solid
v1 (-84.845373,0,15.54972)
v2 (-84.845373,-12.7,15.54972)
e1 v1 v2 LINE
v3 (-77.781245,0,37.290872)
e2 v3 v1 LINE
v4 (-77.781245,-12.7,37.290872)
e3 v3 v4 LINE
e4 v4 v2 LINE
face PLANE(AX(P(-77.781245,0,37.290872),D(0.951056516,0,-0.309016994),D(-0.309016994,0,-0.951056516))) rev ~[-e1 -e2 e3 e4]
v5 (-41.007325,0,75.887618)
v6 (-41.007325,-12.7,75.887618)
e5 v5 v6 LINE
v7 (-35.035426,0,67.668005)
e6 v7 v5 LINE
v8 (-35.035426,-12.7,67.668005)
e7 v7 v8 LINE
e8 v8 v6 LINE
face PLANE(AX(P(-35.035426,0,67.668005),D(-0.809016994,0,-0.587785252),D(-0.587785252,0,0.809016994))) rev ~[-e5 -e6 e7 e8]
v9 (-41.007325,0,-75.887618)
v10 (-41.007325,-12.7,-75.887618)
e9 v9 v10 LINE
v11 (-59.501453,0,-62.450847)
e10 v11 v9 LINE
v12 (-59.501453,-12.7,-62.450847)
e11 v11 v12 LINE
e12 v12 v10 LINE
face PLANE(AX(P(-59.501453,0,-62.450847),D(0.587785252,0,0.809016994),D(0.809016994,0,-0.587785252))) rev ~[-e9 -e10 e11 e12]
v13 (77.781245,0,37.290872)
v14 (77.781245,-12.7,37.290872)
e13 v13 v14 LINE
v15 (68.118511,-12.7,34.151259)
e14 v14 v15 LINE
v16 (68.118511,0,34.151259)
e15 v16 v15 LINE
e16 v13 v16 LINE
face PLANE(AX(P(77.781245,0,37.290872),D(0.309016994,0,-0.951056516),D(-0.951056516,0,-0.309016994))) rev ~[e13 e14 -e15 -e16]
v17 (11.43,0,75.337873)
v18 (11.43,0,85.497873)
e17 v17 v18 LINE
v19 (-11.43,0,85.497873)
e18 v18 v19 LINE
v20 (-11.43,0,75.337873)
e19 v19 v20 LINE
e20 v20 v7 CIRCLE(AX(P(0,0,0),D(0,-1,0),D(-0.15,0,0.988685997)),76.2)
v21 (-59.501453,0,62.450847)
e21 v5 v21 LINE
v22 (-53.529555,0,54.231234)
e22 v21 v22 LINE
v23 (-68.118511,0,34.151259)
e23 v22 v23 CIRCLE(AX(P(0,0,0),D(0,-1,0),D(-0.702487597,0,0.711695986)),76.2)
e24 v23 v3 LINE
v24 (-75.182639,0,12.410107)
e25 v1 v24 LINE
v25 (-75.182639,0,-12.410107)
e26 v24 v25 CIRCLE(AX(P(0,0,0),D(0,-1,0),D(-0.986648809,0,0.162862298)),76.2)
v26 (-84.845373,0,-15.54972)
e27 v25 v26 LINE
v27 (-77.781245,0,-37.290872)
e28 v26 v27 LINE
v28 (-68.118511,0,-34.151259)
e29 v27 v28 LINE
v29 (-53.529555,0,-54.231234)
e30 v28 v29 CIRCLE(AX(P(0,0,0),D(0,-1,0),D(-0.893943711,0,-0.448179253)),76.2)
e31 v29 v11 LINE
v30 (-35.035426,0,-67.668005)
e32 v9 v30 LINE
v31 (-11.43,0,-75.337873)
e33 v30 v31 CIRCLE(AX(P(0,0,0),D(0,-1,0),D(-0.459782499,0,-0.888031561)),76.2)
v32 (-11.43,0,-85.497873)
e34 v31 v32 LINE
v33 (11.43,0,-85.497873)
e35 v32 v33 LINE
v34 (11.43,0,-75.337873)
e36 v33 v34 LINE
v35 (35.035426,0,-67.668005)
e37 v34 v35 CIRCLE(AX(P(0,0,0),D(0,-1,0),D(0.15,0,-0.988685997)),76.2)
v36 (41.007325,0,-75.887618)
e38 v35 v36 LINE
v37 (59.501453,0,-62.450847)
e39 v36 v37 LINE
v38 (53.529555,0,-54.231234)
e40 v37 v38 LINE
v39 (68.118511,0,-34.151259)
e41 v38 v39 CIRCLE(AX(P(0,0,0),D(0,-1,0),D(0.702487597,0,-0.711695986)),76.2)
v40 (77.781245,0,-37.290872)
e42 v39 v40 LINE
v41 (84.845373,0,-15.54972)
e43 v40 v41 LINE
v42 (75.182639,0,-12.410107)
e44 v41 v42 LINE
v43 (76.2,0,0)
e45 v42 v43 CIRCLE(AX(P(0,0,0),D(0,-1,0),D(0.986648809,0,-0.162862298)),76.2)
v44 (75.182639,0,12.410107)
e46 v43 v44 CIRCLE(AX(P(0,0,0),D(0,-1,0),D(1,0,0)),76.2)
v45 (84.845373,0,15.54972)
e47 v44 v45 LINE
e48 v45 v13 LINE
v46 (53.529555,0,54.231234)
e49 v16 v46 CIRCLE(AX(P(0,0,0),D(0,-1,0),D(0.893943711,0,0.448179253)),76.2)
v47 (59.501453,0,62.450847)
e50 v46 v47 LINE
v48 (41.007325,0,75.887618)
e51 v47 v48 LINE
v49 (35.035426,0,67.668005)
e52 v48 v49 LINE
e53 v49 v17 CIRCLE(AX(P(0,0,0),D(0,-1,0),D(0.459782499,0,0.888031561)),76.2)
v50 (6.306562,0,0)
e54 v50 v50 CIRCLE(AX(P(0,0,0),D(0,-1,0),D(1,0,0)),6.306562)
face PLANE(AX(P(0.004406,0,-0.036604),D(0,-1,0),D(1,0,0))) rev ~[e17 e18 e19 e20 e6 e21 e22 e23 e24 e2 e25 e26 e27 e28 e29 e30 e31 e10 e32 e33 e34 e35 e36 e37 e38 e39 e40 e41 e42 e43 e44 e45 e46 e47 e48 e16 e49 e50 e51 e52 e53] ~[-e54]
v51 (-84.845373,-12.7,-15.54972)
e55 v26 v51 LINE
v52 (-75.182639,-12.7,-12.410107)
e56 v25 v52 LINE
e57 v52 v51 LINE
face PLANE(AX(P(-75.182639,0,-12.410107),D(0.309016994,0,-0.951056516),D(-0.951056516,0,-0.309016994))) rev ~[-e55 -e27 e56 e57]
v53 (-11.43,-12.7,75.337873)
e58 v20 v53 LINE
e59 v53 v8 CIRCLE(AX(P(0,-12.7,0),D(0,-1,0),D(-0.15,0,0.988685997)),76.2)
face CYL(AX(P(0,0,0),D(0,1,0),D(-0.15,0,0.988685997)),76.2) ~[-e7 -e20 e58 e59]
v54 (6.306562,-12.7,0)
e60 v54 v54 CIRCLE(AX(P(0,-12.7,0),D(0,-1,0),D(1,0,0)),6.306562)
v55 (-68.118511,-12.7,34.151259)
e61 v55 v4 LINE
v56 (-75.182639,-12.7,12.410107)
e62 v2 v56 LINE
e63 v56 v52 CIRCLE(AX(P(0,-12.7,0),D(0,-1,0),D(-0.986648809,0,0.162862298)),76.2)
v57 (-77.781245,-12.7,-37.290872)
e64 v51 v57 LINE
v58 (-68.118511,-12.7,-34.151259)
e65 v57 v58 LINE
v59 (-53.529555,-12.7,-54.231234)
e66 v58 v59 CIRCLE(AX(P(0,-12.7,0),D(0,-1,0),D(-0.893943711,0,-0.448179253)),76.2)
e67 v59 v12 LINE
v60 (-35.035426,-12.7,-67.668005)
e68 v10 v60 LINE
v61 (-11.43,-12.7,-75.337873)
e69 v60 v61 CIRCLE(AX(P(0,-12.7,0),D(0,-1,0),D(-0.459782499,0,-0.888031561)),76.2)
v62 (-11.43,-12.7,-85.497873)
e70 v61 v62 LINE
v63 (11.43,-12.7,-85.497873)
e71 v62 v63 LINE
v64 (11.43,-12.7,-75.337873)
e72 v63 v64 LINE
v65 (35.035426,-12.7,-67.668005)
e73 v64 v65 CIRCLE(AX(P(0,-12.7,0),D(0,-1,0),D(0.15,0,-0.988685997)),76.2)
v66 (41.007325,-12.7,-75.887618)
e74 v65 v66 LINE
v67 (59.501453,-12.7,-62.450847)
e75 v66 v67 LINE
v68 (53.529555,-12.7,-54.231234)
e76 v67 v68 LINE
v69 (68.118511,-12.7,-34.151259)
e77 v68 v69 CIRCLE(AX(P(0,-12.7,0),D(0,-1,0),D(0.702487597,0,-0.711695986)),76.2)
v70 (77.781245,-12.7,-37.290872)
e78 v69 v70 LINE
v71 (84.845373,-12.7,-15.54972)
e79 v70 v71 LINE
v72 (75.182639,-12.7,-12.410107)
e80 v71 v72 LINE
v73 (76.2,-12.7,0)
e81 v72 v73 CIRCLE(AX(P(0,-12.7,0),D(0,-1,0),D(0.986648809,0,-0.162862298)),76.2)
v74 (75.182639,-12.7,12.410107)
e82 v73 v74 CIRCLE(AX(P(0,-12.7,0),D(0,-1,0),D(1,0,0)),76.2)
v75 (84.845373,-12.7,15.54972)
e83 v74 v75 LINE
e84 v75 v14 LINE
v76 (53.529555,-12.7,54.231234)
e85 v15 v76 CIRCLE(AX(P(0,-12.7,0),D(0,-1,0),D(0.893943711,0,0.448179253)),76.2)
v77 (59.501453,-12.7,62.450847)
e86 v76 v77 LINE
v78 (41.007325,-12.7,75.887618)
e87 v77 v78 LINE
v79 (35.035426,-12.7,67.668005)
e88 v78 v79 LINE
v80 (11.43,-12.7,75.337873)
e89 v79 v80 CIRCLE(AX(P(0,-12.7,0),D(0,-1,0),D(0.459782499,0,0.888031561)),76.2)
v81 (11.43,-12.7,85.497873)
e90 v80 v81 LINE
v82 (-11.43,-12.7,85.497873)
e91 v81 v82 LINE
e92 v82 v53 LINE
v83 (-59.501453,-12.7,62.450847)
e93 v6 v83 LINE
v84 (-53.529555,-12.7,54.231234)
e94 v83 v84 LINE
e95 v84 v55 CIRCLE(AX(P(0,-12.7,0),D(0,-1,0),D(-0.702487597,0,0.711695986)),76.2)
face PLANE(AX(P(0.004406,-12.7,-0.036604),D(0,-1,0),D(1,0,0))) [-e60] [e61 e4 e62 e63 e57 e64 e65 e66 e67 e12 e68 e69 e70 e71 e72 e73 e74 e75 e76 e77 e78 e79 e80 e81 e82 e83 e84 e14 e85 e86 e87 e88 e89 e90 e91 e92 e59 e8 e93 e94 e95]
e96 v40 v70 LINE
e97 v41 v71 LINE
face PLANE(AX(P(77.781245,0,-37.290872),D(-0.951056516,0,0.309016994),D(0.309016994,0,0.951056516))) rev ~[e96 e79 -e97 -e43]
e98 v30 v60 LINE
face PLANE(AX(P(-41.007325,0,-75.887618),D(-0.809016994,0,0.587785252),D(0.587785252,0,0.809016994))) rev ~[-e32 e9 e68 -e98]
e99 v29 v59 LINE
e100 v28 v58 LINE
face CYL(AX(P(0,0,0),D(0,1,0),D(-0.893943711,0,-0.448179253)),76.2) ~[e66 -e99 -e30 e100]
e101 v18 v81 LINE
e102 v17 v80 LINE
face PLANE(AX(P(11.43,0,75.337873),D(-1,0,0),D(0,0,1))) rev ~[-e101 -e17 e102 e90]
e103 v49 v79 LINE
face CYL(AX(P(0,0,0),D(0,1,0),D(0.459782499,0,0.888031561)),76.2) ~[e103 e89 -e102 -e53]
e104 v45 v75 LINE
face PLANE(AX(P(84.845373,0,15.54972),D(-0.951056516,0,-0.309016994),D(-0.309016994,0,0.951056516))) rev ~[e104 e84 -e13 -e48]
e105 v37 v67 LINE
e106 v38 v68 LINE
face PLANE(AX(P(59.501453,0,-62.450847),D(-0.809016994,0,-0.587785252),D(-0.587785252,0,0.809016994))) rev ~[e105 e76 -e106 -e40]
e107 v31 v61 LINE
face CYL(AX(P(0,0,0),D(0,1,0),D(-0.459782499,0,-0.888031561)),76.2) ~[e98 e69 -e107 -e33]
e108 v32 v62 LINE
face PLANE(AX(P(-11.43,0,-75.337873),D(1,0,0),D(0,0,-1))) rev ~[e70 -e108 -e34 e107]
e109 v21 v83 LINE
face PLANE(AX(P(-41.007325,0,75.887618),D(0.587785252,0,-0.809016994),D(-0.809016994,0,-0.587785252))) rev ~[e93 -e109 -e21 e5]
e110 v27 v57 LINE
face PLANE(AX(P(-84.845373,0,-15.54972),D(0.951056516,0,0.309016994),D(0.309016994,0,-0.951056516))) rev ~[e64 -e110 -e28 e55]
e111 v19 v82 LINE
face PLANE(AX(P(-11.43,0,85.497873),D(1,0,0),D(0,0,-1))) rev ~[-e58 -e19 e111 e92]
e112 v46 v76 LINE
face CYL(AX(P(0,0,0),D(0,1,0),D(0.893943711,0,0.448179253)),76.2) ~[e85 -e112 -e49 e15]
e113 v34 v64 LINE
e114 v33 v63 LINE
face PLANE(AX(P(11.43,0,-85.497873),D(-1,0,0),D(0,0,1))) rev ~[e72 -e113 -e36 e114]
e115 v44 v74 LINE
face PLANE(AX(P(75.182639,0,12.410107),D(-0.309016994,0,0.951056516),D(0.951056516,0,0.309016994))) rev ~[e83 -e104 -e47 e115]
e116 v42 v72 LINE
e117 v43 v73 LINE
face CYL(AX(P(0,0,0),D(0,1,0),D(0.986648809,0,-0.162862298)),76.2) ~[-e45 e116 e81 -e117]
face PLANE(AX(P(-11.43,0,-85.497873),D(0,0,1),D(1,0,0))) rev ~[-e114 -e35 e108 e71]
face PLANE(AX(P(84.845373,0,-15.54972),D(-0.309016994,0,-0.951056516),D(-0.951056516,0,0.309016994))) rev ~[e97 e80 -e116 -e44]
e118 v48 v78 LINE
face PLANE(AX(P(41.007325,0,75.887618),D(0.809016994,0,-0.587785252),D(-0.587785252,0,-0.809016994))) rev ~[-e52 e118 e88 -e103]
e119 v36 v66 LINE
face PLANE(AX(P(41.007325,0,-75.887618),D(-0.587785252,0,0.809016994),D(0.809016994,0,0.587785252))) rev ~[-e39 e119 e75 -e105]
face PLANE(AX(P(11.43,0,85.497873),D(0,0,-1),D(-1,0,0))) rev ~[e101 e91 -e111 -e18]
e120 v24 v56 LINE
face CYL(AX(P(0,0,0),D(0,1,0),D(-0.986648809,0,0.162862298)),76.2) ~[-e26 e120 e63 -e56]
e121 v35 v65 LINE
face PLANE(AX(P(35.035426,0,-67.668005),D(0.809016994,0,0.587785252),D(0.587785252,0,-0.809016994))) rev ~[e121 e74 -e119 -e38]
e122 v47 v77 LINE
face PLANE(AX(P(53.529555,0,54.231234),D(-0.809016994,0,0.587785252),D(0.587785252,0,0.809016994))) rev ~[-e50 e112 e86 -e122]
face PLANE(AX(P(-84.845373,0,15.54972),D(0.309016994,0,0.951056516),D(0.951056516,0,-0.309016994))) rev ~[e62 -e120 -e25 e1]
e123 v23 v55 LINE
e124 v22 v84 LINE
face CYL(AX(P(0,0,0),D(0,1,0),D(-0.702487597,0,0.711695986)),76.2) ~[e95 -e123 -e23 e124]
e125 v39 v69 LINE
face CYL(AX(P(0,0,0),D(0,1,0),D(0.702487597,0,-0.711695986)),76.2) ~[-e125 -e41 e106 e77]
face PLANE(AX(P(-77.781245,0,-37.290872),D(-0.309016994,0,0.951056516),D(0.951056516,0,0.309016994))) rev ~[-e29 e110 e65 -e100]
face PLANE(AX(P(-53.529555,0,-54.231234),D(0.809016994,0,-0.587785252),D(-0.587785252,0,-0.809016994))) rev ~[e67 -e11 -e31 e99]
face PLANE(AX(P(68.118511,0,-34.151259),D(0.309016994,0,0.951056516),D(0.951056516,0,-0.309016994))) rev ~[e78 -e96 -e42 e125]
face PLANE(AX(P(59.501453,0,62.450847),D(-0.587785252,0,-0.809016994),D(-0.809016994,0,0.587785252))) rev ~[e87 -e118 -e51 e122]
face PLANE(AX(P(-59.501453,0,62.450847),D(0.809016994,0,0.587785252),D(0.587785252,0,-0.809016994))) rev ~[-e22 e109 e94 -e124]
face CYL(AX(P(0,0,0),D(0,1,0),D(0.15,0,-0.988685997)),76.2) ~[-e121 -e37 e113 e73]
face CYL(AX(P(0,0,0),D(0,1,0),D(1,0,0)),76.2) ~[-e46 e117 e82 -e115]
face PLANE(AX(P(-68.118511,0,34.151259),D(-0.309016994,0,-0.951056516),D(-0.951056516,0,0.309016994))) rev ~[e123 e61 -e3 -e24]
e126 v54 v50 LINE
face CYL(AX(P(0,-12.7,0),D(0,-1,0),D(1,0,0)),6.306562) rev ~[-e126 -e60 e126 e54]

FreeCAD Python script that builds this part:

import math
import FreeCAD as App
import Part
import Sketcher

V = App.Vector
Q = App.Units.Quantity

doc = App.newDocument("Part")
params = doc.addObject("Spreadsheet::Sheet", "Params")
for row, (alias, value) in enumerate([
    ("sketch1_radius", "3 in"),
    ("sketch1_width", "0.9 in"),
    ("sketch1_height", "0.4 in"),
    ("sketch1_length", "0.4 in"),
    ("sketch1_length2", "0.9 in"),
    ("pad1_length", "0.5 in"),
    ("pocket1_length", "0.5 in"),
], start=1):
    params.set(f"A{row}", alias)
    params.set(f"B{row}", "=" + value)
    params.setAlias(f"B{row}", alias)

body = doc.addObject("PartDesign::Body", "Body")

sketch1 = body.newObject("Sketcher::SketchObject", "Sketch")
sketch1.AttachmentSupport = (doc.getObject("XZ_Plane"), [""])
sketch1.MapMode = "FlatFace"
sketch1.addGeometry([
    Part.ArcOfCircle(Part.Circle(V(0, 0, 0), V(0, 0, 1), 76.2), math.radians(-9.373073), math.radians(0)),
    Part.ArcOfCircle(Part.Circle(V(0, 0, 0), V(0, 0, 1), 76.2), math.radians(0), math.radians(9.373073)),
    Part.LineSegment(V(75.182639, 12.410107, 0), V(84.845373, 15.54972, 0)),
    Part.LineSegment(V(84.845373, 15.54972, 0), V(77.781245, 37.290872, 0)),
    Part.LineSegment(V(77.781245, 37.290872, 0), V(68.118511, 34.151259, 0)),
    Part.ArcOfCircle(Part.Circle(V(0, 0, 0), V(0, 0, 1), 76.2), math.radians(26.626927), math.radians(45.373073)),
    Part.LineSegment(V(53.529555, 54.231234, 0), V(59.501453, 62.450847, 0)),
    Part.LineSegment(V(59.501453, 62.450847, 0), V(41.007325, 75.887618, 0)),
    Part.LineSegment(V(41.007325, 75.887618, 0), V(35.035426, 67.668005, 0)),
    Part.ArcOfCircle(Part.Circle(V(0, 0, 0), V(0, 0, 1), 76.2), math.radians(62.626927), math.radians(81.373073)),
    Part.LineSegment(V(11.43, 75.337873, 0), V(11.43, 85.497873, 0)),
    Part.LineSegment(V(11.43, 85.497873, 0), V(-11.43, 85.497873, 0)),
    Part.LineSegment(V(-11.43, 85.497873, 0), V(-11.43, 75.337873, 0)),
    Part.ArcOfCircle(Part.Circle(V(0, 0, 0), V(0, 0, 1), 76.2), math.radians(98.626927), math.radians(117.373073)),
    Part.LineSegment(V(-35.035426, 67.668005, 0), V(-41.007325, 75.887618, 0)),
    Part.LineSegment(V(-41.007325, 75.887618, 0), V(-59.501453, 62.450847, 0)),
    Part.LineSegment(V(-59.501453, 62.450847, 0), V(-53.529555, 54.231234, 0)),
    Part.ArcOfCircle(Part.Circle(V(0, 0, 0), V(0, 0, 1), 76.2), math.radians(134.626927), math.radians(153.373073)),
    Part.LineSegment(V(-68.118511, 34.151259, 0), V(-77.781245, 37.290872, 0)),
    Part.LineSegment(V(-77.781245, 37.290872, 0), V(-84.845373, 15.54972, 0)),
    Part.LineSegment(V(-84.845373, 15.54972, 0), V(-75.182639, 12.410107, 0)),
    Part.ArcOfCircle(Part.Circle(V(0, 0, 0), V(0, 0, 1), 76.2), math.radians(170.626927), math.radians(189.373073)),
    Part.LineSegment(V(-75.182639, -12.410107, 0), V(-84.845373, -15.54972, 0)),
    Part.LineSegment(V(-84.845373, -15.54972, 0), V(-77.781245, -37.290872, 0)),
    Part.LineSegment(V(-77.781245, -37.290872, 0), V(-68.118511, -34.151259, 0)),
    Part.ArcOfCircle(Part.Circle(V(0, 0, 0), V(0, 0, 1), 76.2), math.radians(-153.373073), math.radians(-134.626927)),
    Part.LineSegment(V(-53.529555, -54.231234, 0), V(-59.501453, -62.450847, 0)),
    Part.LineSegment(V(-59.501453, -62.450847, 0), V(-41.007325, -75.887618, 0)),
    Part.LineSegment(V(-41.007325, -75.887618, 0), V(-35.035426, -67.668005, 0)),
    Part.ArcOfCircle(Part.Circle(V(0, 0, 0), V(0, 0, 1), 76.2), math.radians(-117.373073), math.radians(-98.626927)),
    Part.LineSegment(V(-11.43, -75.337873, 0), V(-11.43, -85.497873, 0)),
    Part.LineSegment(V(-11.43, -85.497873, 0), V(11.43, -85.497873, 0)),
    Part.LineSegment(V(11.43, -85.497873, 0), V(11.43, -75.337873, 0)),
    Part.ArcOfCircle(Part.Circle(V(0, 0, 0), V(0, 0, 1), 76.2), math.radians(-81.373073), math.radians(-62.626927)),
    Part.LineSegment(V(35.035426, -67.668005, 0), V(41.007325, -75.887618, 0)),
    Part.LineSegment(V(41.007325, -75.887618, 0), V(59.501453, -62.450847, 0)),
    Part.LineSegment(V(59.501453, -62.450847, 0), V(53.529555, -54.231234, 0)),
    Part.ArcOfCircle(Part.Circle(V(0, 0, 0), V(0, 0, 1), 76.2), math.radians(-45.373073), math.radians(-26.626927)),
    Part.LineSegment(V(68.118511, -34.151259, 0), V(77.781245, -37.290872, 0)),
    Part.LineSegment(V(77.781245, -37.290872, 0), V(84.845373, -15.54972, 0)),
    Part.LineSegment(V(84.845373, -15.54972, 0), V(75.182639, -12.410107, 0)),
], False)
sketch1.addConstraint([
    Sketcher.Constraint("Tangent", 0, 2, 1, 1),
    Sketcher.Constraint("Coincident", 1, 2, 2, 1),
    Sketcher.Constraint("Coincident", 2, 2, 3, 1),
    Sketcher.Constraint("Coincident", 3, 2, 4, 1),
    Sketcher.Constraint("Coincident", 4, 2, 5, 1),
    Sketcher.Constraint("Coincident", 5, 2, 6, 1),
    Sketcher.Constraint("Coincident", 6, 2, 7, 1),
    Sketcher.Constraint("Coincident", 7, 2, 8, 1),
    Sketcher.Constraint("Coincident", 8, 2, 9, 1),
    Sketcher.Constraint("Coincident", 9, 2, 10, 1),
    Sketcher.Constraint("Coincident", 10, 2, 11, 1),
    Sketcher.Constraint("Coincident", 11, 2, 12, 1),
    Sketcher.Constraint("Coincident", 12, 2, 13, 1),
    Sketcher.Constraint("Coincident", 13, 2, 14, 1),
    Sketcher.Constraint("Coincident", 14, 2, 15, 1),
    Sketcher.Constraint("Coincident", 15, 2, 16, 1),
    Sketcher.Constraint("Coincident", 16, 2, 17, 1),
    Sketcher.Constraint("Coincident", 17, 2, 18, 1),
    Sketcher.Constraint("Coincident", 18, 2, 19, 1),
    Sketcher.Constraint("Coincident", 19, 2, 20, 1),
    Sketcher.Constraint("Coincident", 20, 2, 21, 1),
    Sketcher.Constraint("Coincident", 21, 2, 22, 1),
    Sketcher.Constraint("Coincident", 22, 2, 23, 1),
    Sketcher.Constraint("Coincident", 23, 2, 24, 1),
    Sketcher.Constraint("Coincident", 24, 2, 25, 1),
    Sketcher.Constraint("Coincident", 25, 2, 26, 1),
    Sketcher.Constraint("Coincident", 26, 2, 27, 1),
    Sketcher.Constraint("Coincident", 27, 2, 28, 1),
    Sketcher.Constraint("Coincident", 28, 2, 29, 1),
    Sketcher.Constraint("Coincident", 29, 2, 30, 1),
    Sketcher.Constraint("Coincident", 30, 2, 31, 1),
    Sketcher.Constraint("Coincident", 31, 2, 32, 1),
    Sketcher.Constraint("Coincident", 32, 2, 33, 1),
    Sketcher.Constraint("Coincident", 33, 2, 34, 1),
    Sketcher.Constraint("Coincident", 34, 2, 35, 1),
    Sketcher.Constraint("Coincident", 35, 2, 36, 1),
    Sketcher.Constraint("Coincident", 36, 2, 37, 1),
    Sketcher.Constraint("Coincident", 37, 2, 38, 1),
    Sketcher.Constraint("Coincident", 38, 2, 39, 1),
    Sketcher.Constraint("Coincident", 39, 2, 40, 1),
    Sketcher.Constraint("Coincident", 40, 2, 0, 1),
    Sketcher.Constraint("Vertical", 10),
    Sketcher.Constraint("Horizontal", 11),
    Sketcher.Constraint("Vertical", 12),
    Sketcher.Constraint("Vertical", 30),
    Sketcher.Constraint("Horizontal", 31),
    Sketcher.Constraint("Vertical", 32),
    Sketcher.Constraint("Coincident", 0, 3, -1, 1),
    Sketcher.Constraint("Coincident", 5, 3, -1, 1),
    Sketcher.Constraint("Coincident", 9, 3, -1, 1),
    Sketcher.Constraint("Coincident", 13, 3, -1, 1),
    Sketcher.Constraint("Coincident", 17, 3, -1, 1),
    Sketcher.Constraint("Coincident", 21, 3, -1, 1),
    Sketcher.Constraint("Coincident", 25, 3, -1, 1),
    Sketcher.Constraint("Coincident", 29, 3, -1, 1),
    Sketcher.Constraint("Coincident", 33, 3, -1, 1),
    Sketcher.Constraint("Coincident", 37, 3, -1, 1),
    Sketcher.Constraint("Equal", 0, 1),
    Sketcher.Constraint("Equal", 1, 5),
    Sketcher.Constraint("Equal", 5, 9),
    Sketcher.Constraint("Equal", 9, 13),
    Sketcher.Constraint("Equal", 13, 17),
    Sketcher.Constraint("Equal", 17, 21),
    Sketcher.Constraint("Equal", 21, 25),
    Sketcher.Constraint("Equal", 25, 29),
    Sketcher.Constraint("Equal", 29, 33),
    Sketcher.Constraint("Equal", 33, 37),
    Sketcher.Constraint("Symmetric", 2, 2, 22, 2, -1, 1),
    Sketcher.Constraint("Symmetric", 3, 2, 23, 2, -1, 1),
    Sketcher.Constraint("Symmetric", 6, 2, 26, 2, -1, 1),
    Sketcher.Constraint("Symmetric", 7, 2, 27, 2, -1, 1),
    Sketcher.Constraint("Symmetric", 10, 2, 30, 2, -1, 1),
    Sketcher.Constraint("Symmetric", 14, 2, 34, 2, -1, 1),
    Sketcher.Constraint("Symmetric", 15, 2, 35, 2, -1, 1),
    Sketcher.Constraint("Symmetric", 18, 2, 38, 2, -1, 1),
    Sketcher.Constraint("Symmetric", 19, 2, 39, 2, -1, 1),
    Sketcher.Constraint("Symmetric", 7, 2, 14, 2, -2),
    Sketcher.Constraint("Symmetric", 6, 2, 15, 2, -2),
    Sketcher.Constraint("Symmetric", 3, 2, 18, 2, -2),
    Sketcher.Constraint("Symmetric", 2, 2, 19, 2, -2),
    Sketcher.Constraint("PointOnObject", 0, 2, -1),
    Sketcher.Constraint("Perpendicular", 2, 3),
    Sketcher.Constraint("Perpendicular", 3, 4),
    Sketcher.Constraint("Perpendicular", 6, 7),
    Sketcher.Constraint("Perpendicular", 7, 8),
    Sketcher.Constraint("Perpendicular", 14, 15),
    Sketcher.Constraint("Perpendicular", 15, 16),
    Sketcher.Constraint("Perpendicular", 18, 19),
    Sketcher.Constraint("Perpendicular", 19, 20),
    Sketcher.Constraint("Parallel", 4, 22),
    Sketcher.Constraint("Perpendicular", 23, 24),
    Sketcher.Constraint("Parallel", 8, 26),
    Sketcher.Constraint("Perpendicular", 27, 28),
    Sketcher.Constraint("Parallel", 16, 34),
    Sketcher.Constraint("Perpendicular", 35, 36),
    Sketcher.Constraint("Parallel", 20, 38),
    Sketcher.Constraint("Perpendicular", 39, 40),
    Sketcher.Constraint("Horizontal", 9, 2, 12, 2),
    Sketcher.Constraint("Horizontal", 29, 2, 32, 2),
    Sketcher.Constraint("Equal", 2, 4),
    Sketcher.Constraint("Equal", 4, 6),
    Sketcher.Constraint("Equal", 3, 7),
    Sketcher.Constraint("Equal", 6, 8),
    Sketcher.Constraint("Radius", 0, Q("3 in")),
    Sketcher.Constraint("DistanceX", 11, 2, 11, 1, Q("0.9 in")),
    Sketcher.Constraint("DistanceY", 10, 1, 10, 2, Q("0.4 in")),
    Sketcher.Constraint("Angle", 2, Q("18 deg")),
    Sketcher.Constraint("Angle", 6, Q("54 deg")),
    Sketcher.Constraint("Distance", 2, Q("0.4 in")),
    Sketcher.Constraint("Distance", 3, Q("0.9 in")),
])
sketch1.setExpression("Constraints[103]", "Params.sketch1_radius")
sketch1.setExpression("Constraints[104]", "Params.sketch1_width")
sketch1.setExpression("Constraints[105]", "Params.sketch1_height")
sketch1.setExpression("Constraints[108]", "Params.sketch1_length")
sketch1.setExpression("Constraints[109]", "Params.sketch1_length2")
pad1 = body.newObject("PartDesign::Pad", "Pad")
pad1.Profile = sketch1
pad1.setExpression("Length", "Params.pad1_length")

sketch2 = body.newObject("Sketcher::SketchObject", "Sketch001")
sketch2.AttachmentSupport = (doc.getObject("XZ_Plane"), [""])
sketch2.MapMode = "FlatFace"
sketch2.AttachmentOffset = App.Placement(V(0, 0, 0.5 * 25.4), App.Rotation())
sketch2.addGeometry(Part.Circle(V(0, 0, 0), V(0, 0, 1), 6.306562), False)
sketch2.addConstraint([
    Sketcher.Constraint("Coincident", 0, 3, -1, 1),
    Sketcher.Constraint("Diameter", 0, Q("12.613123 mm")),
])
pocket1 = body.newObject("PartDesign::Pocket", "Pocket")
pocket1.Profile = sketch2
pocket1.setExpression("Length", "Params.pocket1_length")

doc.recompute()
